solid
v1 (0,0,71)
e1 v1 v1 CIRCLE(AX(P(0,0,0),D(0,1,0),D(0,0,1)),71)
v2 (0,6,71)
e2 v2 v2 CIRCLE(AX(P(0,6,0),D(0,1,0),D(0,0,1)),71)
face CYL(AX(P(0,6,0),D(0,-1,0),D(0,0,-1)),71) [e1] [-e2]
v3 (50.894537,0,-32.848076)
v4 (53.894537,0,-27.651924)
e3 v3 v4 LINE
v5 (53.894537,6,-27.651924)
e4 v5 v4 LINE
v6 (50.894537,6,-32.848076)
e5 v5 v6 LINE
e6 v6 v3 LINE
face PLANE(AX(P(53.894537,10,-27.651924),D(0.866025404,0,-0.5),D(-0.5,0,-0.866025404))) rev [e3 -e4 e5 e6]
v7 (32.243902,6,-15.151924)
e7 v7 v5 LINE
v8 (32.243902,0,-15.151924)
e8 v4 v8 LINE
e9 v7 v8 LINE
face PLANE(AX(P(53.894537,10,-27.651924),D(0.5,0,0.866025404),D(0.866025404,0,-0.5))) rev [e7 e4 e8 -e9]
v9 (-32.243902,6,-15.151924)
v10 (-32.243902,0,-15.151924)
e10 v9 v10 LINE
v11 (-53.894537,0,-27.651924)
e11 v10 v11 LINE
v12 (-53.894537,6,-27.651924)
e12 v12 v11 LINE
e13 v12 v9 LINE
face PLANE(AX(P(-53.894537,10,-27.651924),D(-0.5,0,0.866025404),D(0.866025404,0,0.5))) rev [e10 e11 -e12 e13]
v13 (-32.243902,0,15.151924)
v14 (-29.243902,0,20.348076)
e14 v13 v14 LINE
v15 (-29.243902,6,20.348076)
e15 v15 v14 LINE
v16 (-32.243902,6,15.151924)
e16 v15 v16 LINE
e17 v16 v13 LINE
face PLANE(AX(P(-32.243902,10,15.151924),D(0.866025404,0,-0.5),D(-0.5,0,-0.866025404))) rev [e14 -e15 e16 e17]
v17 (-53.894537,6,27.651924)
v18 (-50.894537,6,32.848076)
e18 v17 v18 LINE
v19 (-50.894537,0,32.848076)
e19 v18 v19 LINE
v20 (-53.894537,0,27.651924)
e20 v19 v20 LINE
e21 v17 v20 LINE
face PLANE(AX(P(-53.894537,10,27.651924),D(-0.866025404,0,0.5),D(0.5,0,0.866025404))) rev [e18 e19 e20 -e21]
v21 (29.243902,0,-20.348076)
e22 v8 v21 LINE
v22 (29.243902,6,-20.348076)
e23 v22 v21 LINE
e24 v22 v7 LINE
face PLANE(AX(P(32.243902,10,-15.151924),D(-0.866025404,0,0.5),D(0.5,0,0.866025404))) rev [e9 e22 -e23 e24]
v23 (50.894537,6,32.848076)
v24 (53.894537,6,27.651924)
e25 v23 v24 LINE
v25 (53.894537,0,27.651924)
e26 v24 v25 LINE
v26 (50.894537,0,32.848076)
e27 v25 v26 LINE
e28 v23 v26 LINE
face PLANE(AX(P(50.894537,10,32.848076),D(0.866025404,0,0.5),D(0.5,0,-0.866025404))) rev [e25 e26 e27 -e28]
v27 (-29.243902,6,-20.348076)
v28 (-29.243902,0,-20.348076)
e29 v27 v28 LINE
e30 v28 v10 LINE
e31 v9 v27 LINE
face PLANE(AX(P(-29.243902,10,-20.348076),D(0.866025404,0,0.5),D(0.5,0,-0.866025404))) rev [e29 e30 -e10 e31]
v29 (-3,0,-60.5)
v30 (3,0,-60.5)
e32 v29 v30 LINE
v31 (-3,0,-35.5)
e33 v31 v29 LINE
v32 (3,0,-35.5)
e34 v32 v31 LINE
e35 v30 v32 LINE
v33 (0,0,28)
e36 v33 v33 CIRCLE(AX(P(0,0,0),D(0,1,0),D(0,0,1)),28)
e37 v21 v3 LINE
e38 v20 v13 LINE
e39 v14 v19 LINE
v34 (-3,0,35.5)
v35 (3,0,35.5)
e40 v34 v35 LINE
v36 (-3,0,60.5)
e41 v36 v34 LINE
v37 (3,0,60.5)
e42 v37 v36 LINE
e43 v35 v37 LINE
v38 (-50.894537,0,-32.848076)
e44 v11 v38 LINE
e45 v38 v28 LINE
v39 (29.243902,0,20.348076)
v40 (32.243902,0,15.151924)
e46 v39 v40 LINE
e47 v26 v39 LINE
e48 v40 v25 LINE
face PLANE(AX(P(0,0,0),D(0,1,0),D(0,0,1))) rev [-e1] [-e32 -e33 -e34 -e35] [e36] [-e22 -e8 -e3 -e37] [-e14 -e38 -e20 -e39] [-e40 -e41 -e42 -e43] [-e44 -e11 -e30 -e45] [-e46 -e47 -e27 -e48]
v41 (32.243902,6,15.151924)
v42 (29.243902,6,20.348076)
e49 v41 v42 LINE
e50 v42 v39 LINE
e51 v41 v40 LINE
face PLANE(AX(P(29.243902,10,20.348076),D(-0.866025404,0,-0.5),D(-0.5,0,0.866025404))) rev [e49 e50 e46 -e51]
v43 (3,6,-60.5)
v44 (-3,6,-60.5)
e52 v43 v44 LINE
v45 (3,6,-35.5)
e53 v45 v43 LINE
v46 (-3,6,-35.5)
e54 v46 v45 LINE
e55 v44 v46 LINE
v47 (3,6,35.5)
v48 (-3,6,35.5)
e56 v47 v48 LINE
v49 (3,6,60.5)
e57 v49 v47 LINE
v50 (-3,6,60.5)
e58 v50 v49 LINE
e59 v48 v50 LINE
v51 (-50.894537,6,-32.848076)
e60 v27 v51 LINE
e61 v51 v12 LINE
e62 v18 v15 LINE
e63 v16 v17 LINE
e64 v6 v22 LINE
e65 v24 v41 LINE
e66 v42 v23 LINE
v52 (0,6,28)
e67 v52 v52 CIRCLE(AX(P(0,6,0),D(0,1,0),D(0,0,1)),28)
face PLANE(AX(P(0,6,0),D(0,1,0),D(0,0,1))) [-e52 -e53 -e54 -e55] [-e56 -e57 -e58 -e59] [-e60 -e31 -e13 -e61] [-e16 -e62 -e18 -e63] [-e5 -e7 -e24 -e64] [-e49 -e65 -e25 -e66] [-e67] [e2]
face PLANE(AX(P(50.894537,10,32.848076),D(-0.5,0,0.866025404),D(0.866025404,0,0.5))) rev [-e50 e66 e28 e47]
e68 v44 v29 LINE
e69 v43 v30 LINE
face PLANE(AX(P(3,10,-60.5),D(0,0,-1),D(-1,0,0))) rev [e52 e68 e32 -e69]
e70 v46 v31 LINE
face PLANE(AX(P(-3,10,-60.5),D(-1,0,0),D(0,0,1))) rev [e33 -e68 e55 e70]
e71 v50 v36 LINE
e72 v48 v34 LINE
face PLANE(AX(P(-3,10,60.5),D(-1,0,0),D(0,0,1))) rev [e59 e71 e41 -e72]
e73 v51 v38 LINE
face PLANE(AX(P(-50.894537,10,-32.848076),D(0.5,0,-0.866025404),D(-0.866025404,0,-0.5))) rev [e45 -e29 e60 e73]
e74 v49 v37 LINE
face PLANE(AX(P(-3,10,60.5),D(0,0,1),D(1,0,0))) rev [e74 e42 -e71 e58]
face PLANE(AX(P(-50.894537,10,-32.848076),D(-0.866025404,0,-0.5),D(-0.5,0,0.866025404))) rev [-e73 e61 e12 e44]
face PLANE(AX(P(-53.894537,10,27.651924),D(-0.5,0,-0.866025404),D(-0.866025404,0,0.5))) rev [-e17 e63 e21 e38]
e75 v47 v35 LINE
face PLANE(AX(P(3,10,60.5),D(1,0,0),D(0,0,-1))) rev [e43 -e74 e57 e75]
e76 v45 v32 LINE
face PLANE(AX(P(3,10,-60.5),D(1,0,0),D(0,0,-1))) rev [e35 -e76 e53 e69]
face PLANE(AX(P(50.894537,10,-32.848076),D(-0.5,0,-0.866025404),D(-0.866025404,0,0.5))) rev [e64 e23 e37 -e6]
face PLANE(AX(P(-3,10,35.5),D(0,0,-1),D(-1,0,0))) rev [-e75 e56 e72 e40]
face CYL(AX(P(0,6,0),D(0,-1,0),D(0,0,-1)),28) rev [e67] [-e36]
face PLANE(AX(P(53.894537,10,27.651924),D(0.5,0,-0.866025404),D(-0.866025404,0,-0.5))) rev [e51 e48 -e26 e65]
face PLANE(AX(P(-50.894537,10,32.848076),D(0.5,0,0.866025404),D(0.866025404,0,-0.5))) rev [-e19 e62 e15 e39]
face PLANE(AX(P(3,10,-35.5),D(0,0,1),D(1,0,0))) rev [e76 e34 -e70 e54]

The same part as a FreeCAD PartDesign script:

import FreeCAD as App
import Part
import Sketcher
Q = App.Units.Quantity


def add_polygon(sketch, points):
    """Adds a closed chain of lines whose ends are joined by coincident constraints."""
    first, n = sketch.GeometryCount, len(points)
    for a, b in zip(points, points[1:] + points[:1]):
        sketch.addGeometry(Part.LineSegment(App.Vector(*a, 0), App.Vector(*b, 0)), False)
    for i in range(n):
        sketch.addConstraint(Sketcher.Constraint("Coincident", first + i, 2, first + (i + 1) % n, 1))

doc = App.newDocument("Part")
body = doc.addObject("PartDesign::Body", "Body")

# Sketch on XZ plane
sketch1 = doc.addObject("Sketcher::SketchObject", "Sketch")
body.addObject(sketch1)
sketch1.AttachmentSupport = (doc.XZ_Plane, [""])
sketch1.MapMode = "FlatFace"
sketch1.addGeometry(Part.Circle(App.Vector(0, 0, 0), App.Vector(0, 0, 1), 71), False)
sketch1.addGeometry(Part.Circle(App.Vector(0, 0, 0), App.Vector(0, 0, 1), 28), False)
sketch1.addConstraint(Sketcher.Constraint("Coincident", 0, 3, -1, 1))
sketch1.addConstraint(Sketcher.Constraint("Coincident", 1, 3, -1, 1))
sketch1.addConstraint(Sketcher.Constraint("Diameter", 0, Q("142 mm")))
sketch1.addConstraint(Sketcher.Constraint("Diameter", 1, Q("56 mm")))
pad1 = doc.addObject("PartDesign::Pad", "Pad")
body.addObject(pad1)
pad1.Profile = sketch1
pad1.Length = 6
pad1.Reversed = True

# Sketch on XZ plane
sketch2 = doc.addObject("Sketcher::SketchObject", "Sketch001")
body.addObject(sketch2)
sketch2.AttachmentSupport = (doc.XZ_Plane, [""])
sketch2.MapMode = "FlatFace"
add_polygon(sketch2, [(29.243902, -20.348076), (50.894537, -32.848076), (53.894537, -27.651924), (32.243902, -15.151924)])  # lines 0-3
add_polygon(sketch2, [(-3, -35.5), (-3, -60.5), (3, -60.5), (3, -35.5)])  # lines 4-7
add_polygon(sketch2, [(32.243902, 15.151924), (53.894537, 27.651924), (50.894537, 32.848076), (29.243902, 20.348076)])  # lines 8-11
add_polygon(sketch2, [(-3, 60.5), (-3, 35.5), (3, 35.5), (3, 60.5)])  # lines 12-15
add_polygon(sketch2, [(-29.243902, 20.348076), (-50.894537, 32.848076), (-53.894537, 27.651924), (-32.243902, 15.151924)])  # lines 16-19
add_polygon(sketch2, [(-32.243902, -15.151924), (-53.894537, -27.651924), (-50.894537, -32.848076), (-29.243902, -20.348076)])  # lines 20-23
sketch2.addConstraint(Sketcher.Constraint("Vertical", 4))
sketch2.addConstraint(Sketcher.Constraint("Horizontal", 5))
sketch2.addConstraint(Sketcher.Constraint("Vertical", 6))
sketch2.addConstraint(Sketcher.Constraint("Horizontal", 7))
sketch2.addConstraint(Sketcher.Constraint("Vertical", 12))
sketch2.addConstraint(Sketcher.Constraint("Horizontal", 13))
sketch2.addConstraint(Sketcher.Constraint("Vertical", 14))
sketch2.addConstraint(Sketcher.Constraint("Horizontal", 15))
sketch2.addConstraint(Sketcher.Constraint("Symmetric", 6, 2, 12, 2, -1, 1))
sketch2.addConstraint(Sketcher.Constraint("Symmetric", 4, 2, 14, 2, -1, 1))
sketch2.addConstraint(Sketcher.Constraint("Symmetric", 0, 2, 16, 2, -1, 1))
sketch2.addConstraint(Sketcher.Constraint("Symmetric", 1, 2, 17, 2, -1, 1))
sketch2.addConstraint(Sketcher.Constraint("Symmetric", 2, 2, 18, 2, -1, 1))
sketch2.addConstraint(Sketcher.Constraint("Symmetric", 3, 2, 19, 2, -1, 1))
sketch2.addConstraint(Sketcher.Constraint("Symmetric", 8, 2, 20, 2, -1, 1))
sketch2.addConstraint(Sketcher.Constraint("Symmetric", 9, 2, 21, 2, -1, 1))
sketch2.addConstraint(Sketcher.Constraint("Symmetric", 10, 2, 22, 2, -1, 1))
sketch2.addConstraint(Sketcher.Constraint("Symmetric", 11, 2, 23, 2, -1, 1))
sketch2.addConstraint(Sketcher.Constraint("Symmetric", 9, 2, 16, 2, -2))
sketch2.addConstraint(Sketcher.Constraint("Symmetric", 8, 2, 17, 2, -2))
sketch2.addConstraint(Sketcher.Constraint("Symmetric", 11, 2, 18, 2, -2))
sketch2.addConstraint(Sketcher.Constraint("Symmetric", 10, 2, 19, 2, -2))
sketch2.addConstraint(Sketcher.Constraint("Perpendicular", 0, 1))
sketch2.addConstraint(Sketcher.Constraint("Perpendicular", 1, 2))
sketch2.addConstraint(Sketcher.Constraint("Perpendicular", 2, 3))
sketch2.addConstraint(Sketcher.Constraint("Vertical", 7, 2, 12, 2))
sketch2.addConstraint(Sketcher.Constraint("DistanceX", 5, 1, 5, 2, Q("6 mm")))
sketch2.addConstraint(Sketcher.Constraint("DistanceY", 4, 2, 4, 1, Q("25 mm")))
sketch2.addConstraint(Sketcher.Constraint("Angle", 0, Q("-30 deg")))
sketch2.addConstraint(Sketcher.Constraint("Distance", 0, Q("25 mm")))
sketch2.addConstraint(Sketcher.Constraint("Distance", 1, Q("6 mm")))
sketch2.addConstraint(Sketcher.Constraint("DistanceY", 3, 2, 8, 2, Q("48 mm")))
sketch2.addConstraint(Sketcher.Constraint("DistanceY", 4, 2, -1, 1, Q("60.5 mm")))
sketch2.addConstraint(Sketcher.Constraint("DistanceX", -1, 1, 2, 2, Q("32.243902 mm")))
pocket1 = doc.addObject("PartDesign::Pocket", "Pocket")
body.addObject(pocket1)
pocket1.Profile = sketch2
pocket1.Length = 10

doc.recompute()
